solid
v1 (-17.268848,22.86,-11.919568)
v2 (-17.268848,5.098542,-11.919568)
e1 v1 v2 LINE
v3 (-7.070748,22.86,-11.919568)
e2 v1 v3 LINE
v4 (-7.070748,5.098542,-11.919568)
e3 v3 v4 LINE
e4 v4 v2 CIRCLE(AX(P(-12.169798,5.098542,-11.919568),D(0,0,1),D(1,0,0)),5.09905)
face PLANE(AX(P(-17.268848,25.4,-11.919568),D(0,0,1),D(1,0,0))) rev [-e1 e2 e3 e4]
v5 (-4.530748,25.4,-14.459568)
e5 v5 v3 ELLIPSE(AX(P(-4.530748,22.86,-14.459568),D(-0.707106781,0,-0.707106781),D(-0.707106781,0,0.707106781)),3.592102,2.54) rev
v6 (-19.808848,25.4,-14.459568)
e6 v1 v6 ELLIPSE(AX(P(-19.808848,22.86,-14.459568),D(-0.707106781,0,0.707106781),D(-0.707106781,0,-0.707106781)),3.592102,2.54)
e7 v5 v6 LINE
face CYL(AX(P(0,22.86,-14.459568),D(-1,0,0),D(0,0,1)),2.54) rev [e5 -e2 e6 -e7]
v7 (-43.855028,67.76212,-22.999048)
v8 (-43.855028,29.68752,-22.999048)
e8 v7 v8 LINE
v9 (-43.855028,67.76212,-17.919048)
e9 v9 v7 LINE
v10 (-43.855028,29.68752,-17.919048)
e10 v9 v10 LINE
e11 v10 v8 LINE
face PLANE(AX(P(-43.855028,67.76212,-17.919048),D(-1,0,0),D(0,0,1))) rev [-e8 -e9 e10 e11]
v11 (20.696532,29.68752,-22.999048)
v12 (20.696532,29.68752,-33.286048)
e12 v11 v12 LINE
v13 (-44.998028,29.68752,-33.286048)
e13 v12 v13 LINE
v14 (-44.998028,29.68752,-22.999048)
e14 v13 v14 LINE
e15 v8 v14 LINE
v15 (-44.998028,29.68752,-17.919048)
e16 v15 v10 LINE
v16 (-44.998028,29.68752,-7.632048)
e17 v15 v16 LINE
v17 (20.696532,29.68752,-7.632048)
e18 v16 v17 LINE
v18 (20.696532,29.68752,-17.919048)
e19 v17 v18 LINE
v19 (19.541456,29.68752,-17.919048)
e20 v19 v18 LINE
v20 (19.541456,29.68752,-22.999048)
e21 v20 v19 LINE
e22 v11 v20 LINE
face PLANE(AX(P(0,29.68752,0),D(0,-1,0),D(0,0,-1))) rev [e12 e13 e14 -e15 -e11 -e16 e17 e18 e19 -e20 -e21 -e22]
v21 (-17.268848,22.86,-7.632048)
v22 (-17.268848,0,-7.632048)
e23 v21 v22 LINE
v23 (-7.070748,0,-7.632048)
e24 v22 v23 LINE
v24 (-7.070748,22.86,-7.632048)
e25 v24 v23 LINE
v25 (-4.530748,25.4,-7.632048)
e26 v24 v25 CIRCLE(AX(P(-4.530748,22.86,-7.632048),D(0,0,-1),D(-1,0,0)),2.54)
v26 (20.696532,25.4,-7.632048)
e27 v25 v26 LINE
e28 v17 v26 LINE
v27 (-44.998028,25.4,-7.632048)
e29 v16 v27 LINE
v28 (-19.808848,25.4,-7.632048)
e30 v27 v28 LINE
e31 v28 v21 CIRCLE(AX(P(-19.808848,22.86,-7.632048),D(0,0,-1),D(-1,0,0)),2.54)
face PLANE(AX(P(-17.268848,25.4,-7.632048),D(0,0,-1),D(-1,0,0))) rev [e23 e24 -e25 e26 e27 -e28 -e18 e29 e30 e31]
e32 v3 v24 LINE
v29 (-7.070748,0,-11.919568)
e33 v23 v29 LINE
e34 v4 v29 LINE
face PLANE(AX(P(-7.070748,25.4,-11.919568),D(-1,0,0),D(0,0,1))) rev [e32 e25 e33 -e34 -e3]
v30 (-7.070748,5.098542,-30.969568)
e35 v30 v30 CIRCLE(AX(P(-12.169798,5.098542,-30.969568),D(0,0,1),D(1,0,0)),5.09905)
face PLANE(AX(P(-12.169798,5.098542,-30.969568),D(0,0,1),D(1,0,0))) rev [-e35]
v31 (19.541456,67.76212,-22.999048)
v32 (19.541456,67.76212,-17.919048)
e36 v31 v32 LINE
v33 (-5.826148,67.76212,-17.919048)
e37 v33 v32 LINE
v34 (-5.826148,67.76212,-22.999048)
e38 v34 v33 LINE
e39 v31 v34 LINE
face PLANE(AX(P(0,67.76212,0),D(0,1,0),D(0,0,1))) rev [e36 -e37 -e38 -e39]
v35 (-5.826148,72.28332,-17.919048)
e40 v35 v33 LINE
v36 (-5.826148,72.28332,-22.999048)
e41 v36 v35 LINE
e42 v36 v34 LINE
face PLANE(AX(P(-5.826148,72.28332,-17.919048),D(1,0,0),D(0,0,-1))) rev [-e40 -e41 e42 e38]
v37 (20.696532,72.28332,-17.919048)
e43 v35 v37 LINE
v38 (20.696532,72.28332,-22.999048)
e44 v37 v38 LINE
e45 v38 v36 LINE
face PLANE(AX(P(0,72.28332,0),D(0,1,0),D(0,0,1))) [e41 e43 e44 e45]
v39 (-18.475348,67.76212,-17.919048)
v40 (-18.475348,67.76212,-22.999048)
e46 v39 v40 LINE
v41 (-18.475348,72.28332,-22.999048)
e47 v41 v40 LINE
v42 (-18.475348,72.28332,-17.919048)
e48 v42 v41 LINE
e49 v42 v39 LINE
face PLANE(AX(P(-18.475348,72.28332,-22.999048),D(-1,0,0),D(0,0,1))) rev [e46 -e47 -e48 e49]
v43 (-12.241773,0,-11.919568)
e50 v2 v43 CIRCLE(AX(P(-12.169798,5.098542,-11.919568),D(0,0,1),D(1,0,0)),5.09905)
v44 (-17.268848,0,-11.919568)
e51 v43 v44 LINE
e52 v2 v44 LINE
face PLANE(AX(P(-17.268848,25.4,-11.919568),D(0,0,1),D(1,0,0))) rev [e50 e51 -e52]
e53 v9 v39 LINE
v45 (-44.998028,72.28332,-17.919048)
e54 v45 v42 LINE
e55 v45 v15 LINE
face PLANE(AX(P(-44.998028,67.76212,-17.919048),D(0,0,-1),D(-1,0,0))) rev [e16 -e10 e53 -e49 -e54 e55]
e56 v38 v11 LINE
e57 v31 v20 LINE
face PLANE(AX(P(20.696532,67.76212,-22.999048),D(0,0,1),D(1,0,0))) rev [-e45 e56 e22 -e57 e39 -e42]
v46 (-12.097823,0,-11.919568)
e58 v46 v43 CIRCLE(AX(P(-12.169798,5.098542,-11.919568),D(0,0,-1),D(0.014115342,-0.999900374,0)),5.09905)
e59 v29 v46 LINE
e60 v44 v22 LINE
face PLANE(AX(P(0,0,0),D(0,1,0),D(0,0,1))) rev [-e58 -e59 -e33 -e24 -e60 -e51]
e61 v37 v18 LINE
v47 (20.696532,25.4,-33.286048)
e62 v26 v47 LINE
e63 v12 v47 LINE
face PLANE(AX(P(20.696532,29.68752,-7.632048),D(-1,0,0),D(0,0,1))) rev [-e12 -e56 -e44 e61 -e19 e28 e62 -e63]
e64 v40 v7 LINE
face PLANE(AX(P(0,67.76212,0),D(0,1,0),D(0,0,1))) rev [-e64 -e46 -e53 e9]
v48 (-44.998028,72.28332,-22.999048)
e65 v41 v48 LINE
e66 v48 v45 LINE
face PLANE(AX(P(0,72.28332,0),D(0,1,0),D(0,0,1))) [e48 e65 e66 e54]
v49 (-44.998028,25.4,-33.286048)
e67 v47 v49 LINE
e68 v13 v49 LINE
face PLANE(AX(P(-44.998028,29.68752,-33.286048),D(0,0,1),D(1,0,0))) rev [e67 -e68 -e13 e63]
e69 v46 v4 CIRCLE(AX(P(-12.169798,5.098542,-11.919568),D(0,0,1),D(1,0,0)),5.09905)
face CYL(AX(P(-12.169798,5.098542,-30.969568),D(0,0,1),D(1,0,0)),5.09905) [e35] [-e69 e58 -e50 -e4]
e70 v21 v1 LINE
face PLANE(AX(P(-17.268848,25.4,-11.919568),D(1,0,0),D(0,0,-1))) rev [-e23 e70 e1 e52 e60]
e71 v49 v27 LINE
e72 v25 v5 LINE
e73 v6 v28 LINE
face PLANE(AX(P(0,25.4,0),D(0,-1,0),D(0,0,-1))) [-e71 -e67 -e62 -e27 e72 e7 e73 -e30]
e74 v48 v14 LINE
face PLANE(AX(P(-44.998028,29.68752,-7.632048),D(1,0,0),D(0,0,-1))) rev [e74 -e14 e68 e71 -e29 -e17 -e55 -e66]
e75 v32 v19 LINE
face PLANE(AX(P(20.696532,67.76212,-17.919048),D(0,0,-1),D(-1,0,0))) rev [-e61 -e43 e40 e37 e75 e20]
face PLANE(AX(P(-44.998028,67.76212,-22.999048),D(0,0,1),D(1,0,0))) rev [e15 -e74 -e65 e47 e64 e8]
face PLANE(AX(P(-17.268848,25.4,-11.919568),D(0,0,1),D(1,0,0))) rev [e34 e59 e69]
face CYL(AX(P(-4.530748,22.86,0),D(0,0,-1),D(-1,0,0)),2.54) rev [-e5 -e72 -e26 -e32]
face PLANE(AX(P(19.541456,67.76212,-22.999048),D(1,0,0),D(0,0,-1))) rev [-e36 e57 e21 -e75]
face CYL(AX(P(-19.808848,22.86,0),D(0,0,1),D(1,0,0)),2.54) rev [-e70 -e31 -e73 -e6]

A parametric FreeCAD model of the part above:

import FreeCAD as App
import Part
import Sketcher
from FreeCAD import Vector
Q = App.Units.Quantity


def edges_at(feature, points):
    """Names of the edges that pass closest to the given points."""
    edges = feature.Shape.Edges
    near = lambda p: min(range(len(edges)), key=lambda i: edges[i].distToShape(Part.Vertex(*p))[0])
    return sorted({f"Edge{near(p) + 1}" for p in points})

doc = App.newDocument("Part")
params = doc.addObject("Spreadsheet::Sheet", "Params")
for row, (alias, value) in enumerate([
    ("pad1_length", "1 in"),
    ("pad2_length", "0.75 in"),
    ("sketch3_height", "1.01 in"),
    ("pad3_length", "0.1688 in"),
    ("sketch4_height", "0.2 in"),
    ("sketch4_width", "0.045 in"),
    ("pad4_length", "1.499 in"),
    ("sketch5_height", "0.2 in"),
    ("pad5_length", "0.178 in"),
    ("fillet_radius", "0.1 in"),
    ("fillet2_radius", "0.1 in"),
    ("fillet3_radius", "0.1 in"),
], start=1):
    params.set(f"A{row}", alias)
    params.set(f"B{row}", "=" + value)
    params.setAlias(f"B{row}", alias)

body = doc.addObject("PartDesign::Body", "Body")

# Sketch on XZ plane
sketch1 = body.newObject("Sketcher::SketchObject", "Sketch")
sketch1.AttachmentSupport = (doc.getObject("XZ_Plane"), [""])
sketch1.MapMode = "FlatFace"
sketch1.addGeometry([
    Part.LineSegment(Vector(-17.3, -11.9, 0), Vector(-17.3, -7.6, 0)),
    Part.LineSegment(Vector(-17.3, -7.6, 0), Vector(-7.1, -7.6, 0)),
    Part.LineSegment(Vector(-7.1, -7.6, 0), Vector(-7.1, -11.9, 0)),
    Part.LineSegment(Vector(-7.1, -11.9, 0), Vector(-17.3, -11.9, 0)),
], False)
sketch1.addConstraint([
    Sketcher.Constraint("Coincident", 0, 2, 1, 1),
    Sketcher.Constraint("Coincident", 1, 2, 2, 1),
    Sketcher.Constraint("Coincident", 2, 2, 3, 1),
    Sketcher.Constraint("Coincident", 3, 2, 0, 1),
    Sketcher.Constraint("Vertical", 0),
    Sketcher.Constraint("Horizontal", 1),
    Sketcher.Constraint("Vertical", 2),
    Sketcher.Constraint("Horizontal", 3),
    Sketcher.Constraint("DistanceX", 1, 1, 1, 2, Q("0.4015 in")),
    Sketcher.Constraint("DistanceY", 0, 1, 0, 2, Q("0.1688 in")),
    Sketcher.Constraint("DistanceY", 0, 2, -1, 1, Q("7.632048 mm")),
    Sketcher.Constraint("DistanceX", 0, 2, -1, 1, Q("17.268848 mm")),
])
pad1 = body.newObject("PartDesign::Pad", "Pad")
pad1.Profile = sketch1
pad1.setExpression("Length", "Params.pad1_length")
pad1.Reversed = True

# Sketch on XY plane
sketch2 = body.newObject("Sketcher::SketchObject", "Sketch001")
sketch2.AttachmentSupport = (doc.getObject("XY_Plane"), [""])
sketch2.MapMode = "FlatFace"
sketch2.AttachmentOffset = App.Placement(Vector(0, 0, -11.919568), App.Rotation())
sketch2.addGeometry(Part.Circle(Vector(-12, 5, 0), Vector(0, 0, 1), 5), False)
sketch2.addConstraint([
    Sketcher.Constraint("Diameter", 0, Q("0.4015 in")),
    Sketcher.Constraint("DistanceX", 0, 3, -1, 1, Q("12.169798 mm")),
    Sketcher.Constraint("DistanceY", -1, 1, 0, 3, Q("5.098542 mm")),
])
pad2 = body.newObject("PartDesign::Pad", "Pad001")
pad2.Profile = sketch2
pad2.setExpression("Length", "Params.pad2_length")
pad2.Reversed = True

# Sketch on XZ plane
sketch3 = body.newObject("Sketcher::SketchObject", "Sketch002")
sketch3.AttachmentSupport = (doc.getObject("XZ_Plane"), [""])
sketch3.MapMode = "FlatFace"
sketch3.AttachmentOffset = App.Placement(Vector(0, 0, -1 * 25.4), App.Rotation())
sketch3.addGeometry([
    Part.LineSegment(Vector(-45, -33, 0), Vector(-45, -8, 0)),
    Part.LineSegment(Vector(-45, -8, 0), Vector(21, -8, 0)),
    Part.LineSegment(Vector(21, -8, 0), Vector(21, -33, 0)),
    Part.LineSegment(Vector(21, -33, 0), Vector(-45, -33, 0)),
], False)
sketch3.addConstraint([
    Sketcher.Constraint("Coincident", 0, 2, 1, 1),
    Sketcher.Constraint("Coincident", 1, 2, 2, 1),
    Sketcher.Constraint("Coincident", 2, 2, 3, 1),
    Sketcher.Constraint("Coincident", 3, 2, 0, 1),
    Sketcher.Constraint("Vertical", 0),
    Sketcher.Constraint("Horizontal", 1),
    Sketcher.Constraint("Vertical", 2),
    Sketcher.Constraint("Horizontal", 3),
    Sketcher.Constraint("DistanceY", 0, 1, 0, 2, Q("1.01 in")),
    Sketcher.Constraint("DistanceX", 1, 1, 1, 2, Q("2.5864 in")),
    Sketcher.Constraint("DistanceY", 0, 2, -1, 1, Q("7.632048 mm")),
    Sketcher.Constraint("DistanceX", 0, 2, -1, 1, Q("44.998028 mm")),
])
sketch3.setExpression("Constraints[8]", "Params.sketch3_height")
pad3 = body.newObject("PartDesign::Pad", "Pad002")
pad3.Profile = sketch3
pad3.setExpression("Length", "Params.pad3_length")
pad3.Reversed = True

# Sketch on XZ plane
sketch4 = body.newObject("Sketcher::SketchObject", "Sketch003")
sketch4.AttachmentSupport = (doc.getObject("XZ_Plane"), [""])
sketch4.MapMode = "FlatFace"
sketch4.AttachmentOffset = App.Placement(Vector(0, 0, -1.1688 * 25.4), App.Rotation())
sketch4.addGeometry([
    Part.LineSegment(Vector(-45, -23, 0), Vector(-45, -17.9, 0)),  # 0
    Part.LineSegment(Vector(-45, -17.9, 0), Vector(-43.9, -17.9, 0)),  # 1
    Part.LineSegment(Vector(-43.9, -17.9, 0), Vector(-43.9, -23, 0)),  # 2
    Part.LineSegment(Vector(-43.9, -23, 0), Vector(-45, -23, 0)),  # 3
    Part.LineSegment(Vector(19.5, -23, 0), Vector(19.5, -17.9, 0)),  # 4
    Part.LineSegment(Vector(19.5, -17.9, 0), Vector(20.7, -17.9, 0)),  # 5
    Part.LineSegment(Vector(20.7, -17.9, 0), Vector(20.7, -23, 0)),  # 6
    Part.LineSegment(Vector(20.7, -23, 0), Vector(19.5, -23, 0)),  # 7
], False)
sketch4.addConstraint([
    Sketcher.Constraint("Coincident", 0, 2, 1, 1),
    Sketcher.Constraint("Coincident", 1, 2, 2, 1),
    Sketcher.Constraint("Coincident", 2, 2, 3, 1),
    Sketcher.Constraint("Coincident", 3, 2, 0, 1),
    Sketcher.Constraint("Coincident", 4, 2, 5, 1),
    Sketcher.Constraint("Coincident", 5, 2, 6, 1),
    Sketcher.Constraint("Coincident", 6, 2, 7, 1),
    Sketcher.Constraint("Coincident", 7, 2, 4, 1),
    Sketcher.Constraint("Vertical", 0),
    Sketcher.Constraint("Horizontal", 1),
    Sketcher.Constraint("Vertical", 2),
    Sketcher.Constraint("Horizontal", 3),
    Sketcher.Constraint("Vertical", 4),
    Sketcher.Constraint("Horizontal", 5),
    Sketcher.Constraint("Vertical", 6),
    Sketcher.Constraint("Horizontal", 7),
    Sketcher.Constraint("Horizontal", 1, 2, 4, 2),
    Sketcher.Constraint("Horizontal", 3, 2, 6, 2),
    Sketcher.Constraint("DistanceY", 0, 1, 0, 2, Q("0.2 in")),
    Sketcher.Constraint("DistanceX", 1, 1, 1, 2, Q("0.045 in")),
    Sketcher.Constraint("DistanceX", 1, 2, 5, 2, Q("2.5414 in")),
    Sketcher.Constraint("DistanceX", 5, 1, 5, 2, Q("1.155076 mm")),
    Sketcher.Constraint("DistanceY", 0, 2, -1, 1, Q("17.919048 mm")),
    Sketcher.Constraint("DistanceX", 0, 2, -1, 1, Q("44.998028 mm")),
])
sketch4.setExpression("Constraints[18]", "Params.sketch4_height")
sketch4.setExpression("Constraints[19]", "Params.sketch4_width")
pad4 = body.newObject("PartDesign::Pad", "Pad003")
pad4.Profile = sketch4
pad4.setExpression("Length", "Params.pad4_length")
pad4.Reversed = True

# Sketch on XZ plane
sketch5 = body.newObject("Sketcher::SketchObject", "Sketch004")
sketch5.AttachmentSupport = (doc.getObject("XZ_Plane"), [""])
sketch5.MapMode = "FlatFace"
sketch5.AttachmentOffset = App.Placement(Vector(0, 0, -2.6678 * 25.4), App.Rotation())
sketch5.addGeometry([
    Part.LineSegment(Vector(-45, -23, 0), Vector(-45, -18, 0)),  # 0
    Part.LineSegment(Vector(-45, -18, 0), Vector(-18, -18, 0)),  # 1
    Part.LineSegment(Vector(-18, -18, 0), Vector(-18, -23, 0)),  # 2
    Part.LineSegment(Vector(-18, -23, 0), Vector(-45, -23, 0)),  # 3
    Part.LineSegment(Vector(-6, -23, 0), Vector(-6, -18, 0)),  # 4
    Part.LineSegment(Vector(-6, -18, 0), Vector(21, -18, 0)),  # 5
    Part.LineSegment(Vector(21, -18, 0), Vector(21, -23, 0)),  # 6
    Part.LineSegment(Vector(21, -23, 0), Vector(-6, -23, 0)),  # 7
], False)
sketch5.addConstraint([
    Sketcher.Constraint("Coincident", 0, 2, 1, 1),
    Sketcher.Constraint("Coincident", 1, 2, 2, 1),
    Sketcher.Constraint("Coincident", 2, 2, 3, 1),
    Sketcher.Constraint("Coincident", 3, 2, 0, 1),
    Sketcher.Constraint("Coincident", 4, 2, 5, 1),
    Sketcher.Constraint("Coincident", 5, 2, 6, 1),
    Sketcher.Constraint("Coincident", 6, 2, 7, 1),
    Sketcher.Constraint("Coincident", 7, 2, 4, 1),
    Sketcher.Constraint("Vertical", 0),
    Sketcher.Constraint("Horizontal", 1),
    Sketcher.Constraint("Vertical", 2),
    Sketcher.Constraint("Horizontal", 3),
    Sketcher.Constraint("Vertical", 4),
    Sketcher.Constraint("Horizontal", 5),
    Sketcher.Constraint("Vertical", 6),
    Sketcher.Constraint("Horizontal", 7),
    Sketcher.Constraint("Horizontal", 1, 2, 4, 2),
    Sketcher.Constraint("Horizontal", 3, 2, 6, 2),
    Sketcher.Constraint("Equal", 3, 5),
    Sketcher.Constraint("DistanceY", 0, 1, 0, 2, Q("0.2 in")),
    Sketcher.Constraint("DistanceX", 1, 1, 1, 2, Q("1.0442 in")),
    Sketcher.Constraint("DistanceX", 1, 2, 4, 2, Q("0.498 in")),
    Sketcher.Constraint("DistanceY", 0, 2, -1, 1, Q("17.919048 mm")),
    Sketcher.Constraint("DistanceX", 0, 2, -1, 1, Q("44.998028 mm")),
])
sketch5.setExpression("Constraints[19]", "Params.sketch5_height")
pad5 = body.newObject("PartDesign::Pad", "Pad004")
pad5.Profile = sketch5
pad5.setExpression("Length", "Params.pad5_length")
pad5.Reversed = True
doc.recompute()

fillet = body.newObject("PartDesign::Fillet", "Fillet")
fillet.Base = (pad5, edges_at(pad5, [(-12.17, 25.4, -11.92)]))
fillet.setExpression("Radius", "Params.fillet_radius")
doc.recompute()

fillet2 = body.newObject("PartDesign::Fillet", "Fillet001")
fillet2.Base = (fillet, edges_at(fillet, [(-17.269, 25.4, -11.046)]))
fillet2.setExpression("Radius", "Params.fillet2_radius")
doc.recompute()

fillet3 = body.newObject("PartDesign::Fillet", "Fillet002")
fillet3.Base = (fillet2, edges_at(fillet2, [(-7.071, 25.4, -11.046)]))
fillet3.setExpression("Radius", "Params.fillet3_radius")

doc.recompute()
